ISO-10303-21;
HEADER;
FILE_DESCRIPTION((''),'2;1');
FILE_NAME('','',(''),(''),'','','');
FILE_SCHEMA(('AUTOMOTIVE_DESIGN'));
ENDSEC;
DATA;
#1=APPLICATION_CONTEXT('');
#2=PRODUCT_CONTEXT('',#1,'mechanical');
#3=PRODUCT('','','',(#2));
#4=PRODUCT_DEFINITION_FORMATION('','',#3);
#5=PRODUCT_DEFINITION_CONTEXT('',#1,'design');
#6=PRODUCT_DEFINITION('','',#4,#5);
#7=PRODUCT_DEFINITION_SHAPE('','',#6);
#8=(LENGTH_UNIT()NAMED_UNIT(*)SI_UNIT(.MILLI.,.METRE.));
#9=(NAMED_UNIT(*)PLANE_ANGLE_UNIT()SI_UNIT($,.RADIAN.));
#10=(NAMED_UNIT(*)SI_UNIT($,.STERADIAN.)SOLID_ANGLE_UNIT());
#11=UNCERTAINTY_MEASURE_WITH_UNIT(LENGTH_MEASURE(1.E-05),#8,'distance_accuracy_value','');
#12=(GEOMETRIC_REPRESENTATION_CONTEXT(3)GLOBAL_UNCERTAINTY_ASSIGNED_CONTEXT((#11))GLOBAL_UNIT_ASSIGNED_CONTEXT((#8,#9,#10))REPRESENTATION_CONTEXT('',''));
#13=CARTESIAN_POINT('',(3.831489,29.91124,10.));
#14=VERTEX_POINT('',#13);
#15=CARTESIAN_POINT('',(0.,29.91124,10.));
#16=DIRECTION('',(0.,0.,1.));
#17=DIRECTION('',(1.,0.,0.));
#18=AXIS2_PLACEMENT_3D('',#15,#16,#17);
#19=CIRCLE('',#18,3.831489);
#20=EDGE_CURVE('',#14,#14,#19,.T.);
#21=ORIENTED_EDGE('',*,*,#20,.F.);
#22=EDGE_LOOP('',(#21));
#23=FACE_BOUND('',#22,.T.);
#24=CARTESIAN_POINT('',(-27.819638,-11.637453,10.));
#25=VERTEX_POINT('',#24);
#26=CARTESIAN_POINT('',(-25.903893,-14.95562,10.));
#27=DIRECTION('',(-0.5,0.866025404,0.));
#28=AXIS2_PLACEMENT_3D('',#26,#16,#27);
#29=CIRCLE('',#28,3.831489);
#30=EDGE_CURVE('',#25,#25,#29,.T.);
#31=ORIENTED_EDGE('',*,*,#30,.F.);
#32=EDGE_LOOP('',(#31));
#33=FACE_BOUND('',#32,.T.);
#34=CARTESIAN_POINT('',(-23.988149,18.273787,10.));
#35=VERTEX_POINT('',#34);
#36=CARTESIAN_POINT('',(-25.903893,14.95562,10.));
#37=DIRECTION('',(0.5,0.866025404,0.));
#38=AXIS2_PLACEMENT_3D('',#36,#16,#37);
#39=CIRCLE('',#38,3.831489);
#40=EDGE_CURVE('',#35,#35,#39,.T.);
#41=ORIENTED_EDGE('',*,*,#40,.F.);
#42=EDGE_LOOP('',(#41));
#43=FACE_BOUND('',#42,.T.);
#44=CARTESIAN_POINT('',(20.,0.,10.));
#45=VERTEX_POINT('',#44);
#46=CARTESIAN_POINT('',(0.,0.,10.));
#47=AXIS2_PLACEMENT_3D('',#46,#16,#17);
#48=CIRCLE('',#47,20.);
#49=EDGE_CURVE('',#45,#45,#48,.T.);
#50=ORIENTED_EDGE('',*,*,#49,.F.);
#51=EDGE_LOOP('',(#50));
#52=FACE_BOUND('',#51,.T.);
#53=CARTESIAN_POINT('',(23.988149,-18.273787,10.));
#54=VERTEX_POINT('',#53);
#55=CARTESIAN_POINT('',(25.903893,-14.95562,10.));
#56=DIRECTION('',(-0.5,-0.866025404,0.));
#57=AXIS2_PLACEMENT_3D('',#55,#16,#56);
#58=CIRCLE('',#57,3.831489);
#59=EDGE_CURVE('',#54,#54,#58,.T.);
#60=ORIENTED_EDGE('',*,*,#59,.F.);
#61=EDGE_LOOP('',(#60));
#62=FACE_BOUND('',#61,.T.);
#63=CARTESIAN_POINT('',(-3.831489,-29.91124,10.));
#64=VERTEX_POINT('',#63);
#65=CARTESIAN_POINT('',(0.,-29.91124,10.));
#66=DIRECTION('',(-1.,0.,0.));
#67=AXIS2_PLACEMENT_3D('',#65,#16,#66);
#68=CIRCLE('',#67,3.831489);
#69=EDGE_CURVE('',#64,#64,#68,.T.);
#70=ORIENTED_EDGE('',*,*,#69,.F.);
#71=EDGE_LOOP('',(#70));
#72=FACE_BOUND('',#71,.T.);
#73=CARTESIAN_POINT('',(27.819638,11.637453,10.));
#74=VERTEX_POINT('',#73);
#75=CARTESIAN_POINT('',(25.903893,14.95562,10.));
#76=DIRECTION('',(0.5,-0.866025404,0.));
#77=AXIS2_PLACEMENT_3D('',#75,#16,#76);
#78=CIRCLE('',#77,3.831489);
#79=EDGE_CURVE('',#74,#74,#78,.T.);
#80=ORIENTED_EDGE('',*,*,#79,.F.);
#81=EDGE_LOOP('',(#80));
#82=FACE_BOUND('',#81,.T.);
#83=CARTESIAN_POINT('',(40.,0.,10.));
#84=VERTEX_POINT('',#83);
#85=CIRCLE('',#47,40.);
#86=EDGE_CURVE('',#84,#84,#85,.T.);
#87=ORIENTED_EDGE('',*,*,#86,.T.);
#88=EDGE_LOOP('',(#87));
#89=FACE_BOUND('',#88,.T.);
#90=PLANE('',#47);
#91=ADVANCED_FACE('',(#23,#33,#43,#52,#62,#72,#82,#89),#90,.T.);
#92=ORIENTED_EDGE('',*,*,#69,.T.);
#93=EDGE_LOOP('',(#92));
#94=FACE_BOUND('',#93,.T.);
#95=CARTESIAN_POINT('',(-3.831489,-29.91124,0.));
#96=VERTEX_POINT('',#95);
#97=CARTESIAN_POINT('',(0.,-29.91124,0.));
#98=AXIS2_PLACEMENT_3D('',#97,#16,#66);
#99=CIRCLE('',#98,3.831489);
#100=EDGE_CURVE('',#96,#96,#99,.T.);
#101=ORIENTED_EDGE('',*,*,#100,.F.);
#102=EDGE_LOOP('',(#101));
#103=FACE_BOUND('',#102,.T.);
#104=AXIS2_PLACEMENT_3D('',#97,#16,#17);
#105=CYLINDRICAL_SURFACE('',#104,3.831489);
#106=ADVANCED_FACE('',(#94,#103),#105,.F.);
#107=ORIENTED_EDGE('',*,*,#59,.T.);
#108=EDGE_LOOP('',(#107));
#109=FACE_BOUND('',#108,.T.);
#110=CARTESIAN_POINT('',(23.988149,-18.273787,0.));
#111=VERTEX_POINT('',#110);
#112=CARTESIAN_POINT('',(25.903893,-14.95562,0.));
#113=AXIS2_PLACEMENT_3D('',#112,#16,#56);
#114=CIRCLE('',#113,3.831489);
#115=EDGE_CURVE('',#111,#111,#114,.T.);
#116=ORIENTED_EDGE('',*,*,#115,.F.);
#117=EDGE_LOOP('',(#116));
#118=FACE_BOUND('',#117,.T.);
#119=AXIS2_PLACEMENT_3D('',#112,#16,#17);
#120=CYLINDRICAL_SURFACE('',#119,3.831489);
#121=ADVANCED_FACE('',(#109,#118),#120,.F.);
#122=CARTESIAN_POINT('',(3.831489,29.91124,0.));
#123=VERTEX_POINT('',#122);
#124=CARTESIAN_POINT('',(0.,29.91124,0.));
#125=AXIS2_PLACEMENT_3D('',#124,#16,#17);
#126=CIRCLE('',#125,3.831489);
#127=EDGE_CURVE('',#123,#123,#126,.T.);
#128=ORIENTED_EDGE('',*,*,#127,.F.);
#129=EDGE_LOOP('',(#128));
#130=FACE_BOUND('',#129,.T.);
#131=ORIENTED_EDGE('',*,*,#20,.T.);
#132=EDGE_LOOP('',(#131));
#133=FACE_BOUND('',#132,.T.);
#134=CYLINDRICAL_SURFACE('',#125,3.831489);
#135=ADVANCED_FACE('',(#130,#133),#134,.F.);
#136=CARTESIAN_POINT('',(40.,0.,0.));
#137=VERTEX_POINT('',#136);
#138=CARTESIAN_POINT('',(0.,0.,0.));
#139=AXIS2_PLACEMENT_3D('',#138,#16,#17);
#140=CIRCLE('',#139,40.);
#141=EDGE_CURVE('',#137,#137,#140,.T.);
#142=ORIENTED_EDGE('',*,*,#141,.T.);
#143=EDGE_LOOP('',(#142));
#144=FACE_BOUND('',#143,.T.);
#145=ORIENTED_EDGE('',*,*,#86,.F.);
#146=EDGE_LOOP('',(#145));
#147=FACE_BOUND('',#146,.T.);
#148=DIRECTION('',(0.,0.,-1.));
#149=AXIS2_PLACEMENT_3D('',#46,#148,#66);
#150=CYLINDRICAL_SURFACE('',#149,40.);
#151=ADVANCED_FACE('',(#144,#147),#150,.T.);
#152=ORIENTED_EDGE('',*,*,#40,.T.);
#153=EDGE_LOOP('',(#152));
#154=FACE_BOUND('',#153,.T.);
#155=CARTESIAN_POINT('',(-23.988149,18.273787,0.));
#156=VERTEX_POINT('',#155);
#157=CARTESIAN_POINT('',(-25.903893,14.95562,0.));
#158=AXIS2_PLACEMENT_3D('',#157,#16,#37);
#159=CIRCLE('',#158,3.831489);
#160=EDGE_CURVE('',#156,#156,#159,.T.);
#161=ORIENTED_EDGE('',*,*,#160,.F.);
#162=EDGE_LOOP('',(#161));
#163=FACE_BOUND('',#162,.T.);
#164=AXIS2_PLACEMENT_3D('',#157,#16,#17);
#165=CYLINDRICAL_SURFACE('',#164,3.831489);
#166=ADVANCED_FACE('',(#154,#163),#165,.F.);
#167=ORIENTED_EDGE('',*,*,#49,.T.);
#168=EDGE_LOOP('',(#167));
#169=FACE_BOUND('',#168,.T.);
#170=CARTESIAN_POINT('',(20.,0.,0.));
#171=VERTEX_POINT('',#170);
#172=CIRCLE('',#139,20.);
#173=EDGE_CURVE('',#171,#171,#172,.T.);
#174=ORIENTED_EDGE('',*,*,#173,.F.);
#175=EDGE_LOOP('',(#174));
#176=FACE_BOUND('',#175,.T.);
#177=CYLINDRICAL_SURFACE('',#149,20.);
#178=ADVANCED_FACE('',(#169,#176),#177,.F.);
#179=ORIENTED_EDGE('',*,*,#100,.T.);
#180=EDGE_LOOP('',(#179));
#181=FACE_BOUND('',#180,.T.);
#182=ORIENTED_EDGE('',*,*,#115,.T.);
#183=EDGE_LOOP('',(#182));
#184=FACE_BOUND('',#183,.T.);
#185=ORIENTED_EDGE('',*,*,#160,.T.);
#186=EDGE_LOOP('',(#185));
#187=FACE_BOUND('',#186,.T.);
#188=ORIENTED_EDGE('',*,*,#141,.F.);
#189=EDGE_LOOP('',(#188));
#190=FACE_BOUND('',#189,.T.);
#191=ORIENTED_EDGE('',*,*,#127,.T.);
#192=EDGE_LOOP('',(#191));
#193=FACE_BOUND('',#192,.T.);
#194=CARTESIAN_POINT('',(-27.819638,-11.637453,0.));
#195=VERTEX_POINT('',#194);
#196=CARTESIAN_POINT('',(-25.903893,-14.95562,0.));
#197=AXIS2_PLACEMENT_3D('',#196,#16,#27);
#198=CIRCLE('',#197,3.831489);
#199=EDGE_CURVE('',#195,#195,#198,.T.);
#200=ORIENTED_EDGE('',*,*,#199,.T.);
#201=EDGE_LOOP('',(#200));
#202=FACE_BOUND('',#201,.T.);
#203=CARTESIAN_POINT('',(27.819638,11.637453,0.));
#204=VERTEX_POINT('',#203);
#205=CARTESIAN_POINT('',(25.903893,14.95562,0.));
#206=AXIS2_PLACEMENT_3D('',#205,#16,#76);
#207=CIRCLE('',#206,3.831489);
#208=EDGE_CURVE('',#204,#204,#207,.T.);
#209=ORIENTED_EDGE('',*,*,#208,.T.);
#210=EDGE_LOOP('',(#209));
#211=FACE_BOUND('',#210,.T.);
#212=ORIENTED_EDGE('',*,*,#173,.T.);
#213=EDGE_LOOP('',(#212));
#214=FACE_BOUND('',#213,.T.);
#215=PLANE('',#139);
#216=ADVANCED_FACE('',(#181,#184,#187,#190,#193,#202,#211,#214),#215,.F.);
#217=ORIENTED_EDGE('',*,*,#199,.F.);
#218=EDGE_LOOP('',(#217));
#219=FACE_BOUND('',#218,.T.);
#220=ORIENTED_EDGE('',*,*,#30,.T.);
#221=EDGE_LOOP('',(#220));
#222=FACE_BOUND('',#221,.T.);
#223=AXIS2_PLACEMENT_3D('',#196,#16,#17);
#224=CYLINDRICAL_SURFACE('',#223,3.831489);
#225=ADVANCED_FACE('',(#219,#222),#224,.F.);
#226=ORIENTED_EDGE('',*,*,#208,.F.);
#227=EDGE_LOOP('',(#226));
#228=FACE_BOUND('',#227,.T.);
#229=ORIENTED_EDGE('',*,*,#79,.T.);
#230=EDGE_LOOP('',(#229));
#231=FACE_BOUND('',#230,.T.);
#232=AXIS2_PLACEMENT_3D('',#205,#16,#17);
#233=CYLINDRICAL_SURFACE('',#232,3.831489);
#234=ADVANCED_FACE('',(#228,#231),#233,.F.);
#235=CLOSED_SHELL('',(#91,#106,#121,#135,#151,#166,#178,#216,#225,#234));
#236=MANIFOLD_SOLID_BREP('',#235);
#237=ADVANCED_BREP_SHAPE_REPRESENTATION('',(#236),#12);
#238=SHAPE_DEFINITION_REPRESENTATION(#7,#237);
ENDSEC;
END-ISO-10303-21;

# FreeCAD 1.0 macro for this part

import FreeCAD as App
import Part
import Sketcher

doc = App.newDocument("Part")
body = doc.addObject("PartDesign::Body", "Body")

sketch1 = body.newObject("Sketcher::SketchObject", "Sketch")
sketch1.AttachmentSupport = (doc.getObject("XY_Plane"), [""])
sketch1.MapMode = "FlatFace"
sketch1.addGeometry(Part.Circle(App.Vector(0, 0, 0), App.Vector(0, 0, 1), 40), False)
sketch1.addGeometry(Part.Circle(App.Vector(0, 0, 0), App.Vector(0, 0, 1), 20), False)
sketch1.addConstraint(Sketcher.Constraint("Coincident", 0, 3, -1, 1))
sketch1.addConstraint(Sketcher.Constraint("Coincident", 1, 3, -1, 1))
sketch1.addConstraint(Sketcher.Constraint("Diameter", 0, 80.0))
sketch1.addConstraint(Sketcher.Constraint("Diameter", 1, 40.0))
pad1 = body.newObject("PartDesign::Pad", "Pad")
pad1.Profile = sketch1
pad1.Length = 10

sketch2 = body.newObject("Sketcher::SketchObject", "Sketch001")
sketch2.AttachmentSupport = (doc.getObject("XY_Plane"), [""])
sketch2.MapMode = "FlatFace"
sketch2.AttachmentOffset = App.Placement(App.Vector(0, 0, 10), App.Rotation())
sketch2.addGeometry(Part.Circle(App.Vector(0, 29.9, 0), App.Vector(0, 0, 1), 3.8), False)
sketch2.addConstraint(Sketcher.Constraint("PointOnObject", 0, 3, -2))
sketch2.addConstraint(Sketcher.Constraint("Diameter", 0, 7.662979))
sketch2.addConstraint(Sketcher.Constraint("DistanceY", -1, 1, 0, 3, 29.91124))
pocket1 = body.newObject("PartDesign::Pocket", "Pocket")
pocket1.Profile = sketch2
pocket1.Length = 10
doc.recompute()

polarpattern = body.newObject("PartDesign::PolarPattern", "PolarPattern")
polarpattern.Originals = [pocket1]
polarpattern.Axis = (doc.getObject("Z_Axis"), [""])
polarpattern.Angle = 360
polarpattern.Occurrences = 6
body.Tip = polarpattern

doc.recompute()
